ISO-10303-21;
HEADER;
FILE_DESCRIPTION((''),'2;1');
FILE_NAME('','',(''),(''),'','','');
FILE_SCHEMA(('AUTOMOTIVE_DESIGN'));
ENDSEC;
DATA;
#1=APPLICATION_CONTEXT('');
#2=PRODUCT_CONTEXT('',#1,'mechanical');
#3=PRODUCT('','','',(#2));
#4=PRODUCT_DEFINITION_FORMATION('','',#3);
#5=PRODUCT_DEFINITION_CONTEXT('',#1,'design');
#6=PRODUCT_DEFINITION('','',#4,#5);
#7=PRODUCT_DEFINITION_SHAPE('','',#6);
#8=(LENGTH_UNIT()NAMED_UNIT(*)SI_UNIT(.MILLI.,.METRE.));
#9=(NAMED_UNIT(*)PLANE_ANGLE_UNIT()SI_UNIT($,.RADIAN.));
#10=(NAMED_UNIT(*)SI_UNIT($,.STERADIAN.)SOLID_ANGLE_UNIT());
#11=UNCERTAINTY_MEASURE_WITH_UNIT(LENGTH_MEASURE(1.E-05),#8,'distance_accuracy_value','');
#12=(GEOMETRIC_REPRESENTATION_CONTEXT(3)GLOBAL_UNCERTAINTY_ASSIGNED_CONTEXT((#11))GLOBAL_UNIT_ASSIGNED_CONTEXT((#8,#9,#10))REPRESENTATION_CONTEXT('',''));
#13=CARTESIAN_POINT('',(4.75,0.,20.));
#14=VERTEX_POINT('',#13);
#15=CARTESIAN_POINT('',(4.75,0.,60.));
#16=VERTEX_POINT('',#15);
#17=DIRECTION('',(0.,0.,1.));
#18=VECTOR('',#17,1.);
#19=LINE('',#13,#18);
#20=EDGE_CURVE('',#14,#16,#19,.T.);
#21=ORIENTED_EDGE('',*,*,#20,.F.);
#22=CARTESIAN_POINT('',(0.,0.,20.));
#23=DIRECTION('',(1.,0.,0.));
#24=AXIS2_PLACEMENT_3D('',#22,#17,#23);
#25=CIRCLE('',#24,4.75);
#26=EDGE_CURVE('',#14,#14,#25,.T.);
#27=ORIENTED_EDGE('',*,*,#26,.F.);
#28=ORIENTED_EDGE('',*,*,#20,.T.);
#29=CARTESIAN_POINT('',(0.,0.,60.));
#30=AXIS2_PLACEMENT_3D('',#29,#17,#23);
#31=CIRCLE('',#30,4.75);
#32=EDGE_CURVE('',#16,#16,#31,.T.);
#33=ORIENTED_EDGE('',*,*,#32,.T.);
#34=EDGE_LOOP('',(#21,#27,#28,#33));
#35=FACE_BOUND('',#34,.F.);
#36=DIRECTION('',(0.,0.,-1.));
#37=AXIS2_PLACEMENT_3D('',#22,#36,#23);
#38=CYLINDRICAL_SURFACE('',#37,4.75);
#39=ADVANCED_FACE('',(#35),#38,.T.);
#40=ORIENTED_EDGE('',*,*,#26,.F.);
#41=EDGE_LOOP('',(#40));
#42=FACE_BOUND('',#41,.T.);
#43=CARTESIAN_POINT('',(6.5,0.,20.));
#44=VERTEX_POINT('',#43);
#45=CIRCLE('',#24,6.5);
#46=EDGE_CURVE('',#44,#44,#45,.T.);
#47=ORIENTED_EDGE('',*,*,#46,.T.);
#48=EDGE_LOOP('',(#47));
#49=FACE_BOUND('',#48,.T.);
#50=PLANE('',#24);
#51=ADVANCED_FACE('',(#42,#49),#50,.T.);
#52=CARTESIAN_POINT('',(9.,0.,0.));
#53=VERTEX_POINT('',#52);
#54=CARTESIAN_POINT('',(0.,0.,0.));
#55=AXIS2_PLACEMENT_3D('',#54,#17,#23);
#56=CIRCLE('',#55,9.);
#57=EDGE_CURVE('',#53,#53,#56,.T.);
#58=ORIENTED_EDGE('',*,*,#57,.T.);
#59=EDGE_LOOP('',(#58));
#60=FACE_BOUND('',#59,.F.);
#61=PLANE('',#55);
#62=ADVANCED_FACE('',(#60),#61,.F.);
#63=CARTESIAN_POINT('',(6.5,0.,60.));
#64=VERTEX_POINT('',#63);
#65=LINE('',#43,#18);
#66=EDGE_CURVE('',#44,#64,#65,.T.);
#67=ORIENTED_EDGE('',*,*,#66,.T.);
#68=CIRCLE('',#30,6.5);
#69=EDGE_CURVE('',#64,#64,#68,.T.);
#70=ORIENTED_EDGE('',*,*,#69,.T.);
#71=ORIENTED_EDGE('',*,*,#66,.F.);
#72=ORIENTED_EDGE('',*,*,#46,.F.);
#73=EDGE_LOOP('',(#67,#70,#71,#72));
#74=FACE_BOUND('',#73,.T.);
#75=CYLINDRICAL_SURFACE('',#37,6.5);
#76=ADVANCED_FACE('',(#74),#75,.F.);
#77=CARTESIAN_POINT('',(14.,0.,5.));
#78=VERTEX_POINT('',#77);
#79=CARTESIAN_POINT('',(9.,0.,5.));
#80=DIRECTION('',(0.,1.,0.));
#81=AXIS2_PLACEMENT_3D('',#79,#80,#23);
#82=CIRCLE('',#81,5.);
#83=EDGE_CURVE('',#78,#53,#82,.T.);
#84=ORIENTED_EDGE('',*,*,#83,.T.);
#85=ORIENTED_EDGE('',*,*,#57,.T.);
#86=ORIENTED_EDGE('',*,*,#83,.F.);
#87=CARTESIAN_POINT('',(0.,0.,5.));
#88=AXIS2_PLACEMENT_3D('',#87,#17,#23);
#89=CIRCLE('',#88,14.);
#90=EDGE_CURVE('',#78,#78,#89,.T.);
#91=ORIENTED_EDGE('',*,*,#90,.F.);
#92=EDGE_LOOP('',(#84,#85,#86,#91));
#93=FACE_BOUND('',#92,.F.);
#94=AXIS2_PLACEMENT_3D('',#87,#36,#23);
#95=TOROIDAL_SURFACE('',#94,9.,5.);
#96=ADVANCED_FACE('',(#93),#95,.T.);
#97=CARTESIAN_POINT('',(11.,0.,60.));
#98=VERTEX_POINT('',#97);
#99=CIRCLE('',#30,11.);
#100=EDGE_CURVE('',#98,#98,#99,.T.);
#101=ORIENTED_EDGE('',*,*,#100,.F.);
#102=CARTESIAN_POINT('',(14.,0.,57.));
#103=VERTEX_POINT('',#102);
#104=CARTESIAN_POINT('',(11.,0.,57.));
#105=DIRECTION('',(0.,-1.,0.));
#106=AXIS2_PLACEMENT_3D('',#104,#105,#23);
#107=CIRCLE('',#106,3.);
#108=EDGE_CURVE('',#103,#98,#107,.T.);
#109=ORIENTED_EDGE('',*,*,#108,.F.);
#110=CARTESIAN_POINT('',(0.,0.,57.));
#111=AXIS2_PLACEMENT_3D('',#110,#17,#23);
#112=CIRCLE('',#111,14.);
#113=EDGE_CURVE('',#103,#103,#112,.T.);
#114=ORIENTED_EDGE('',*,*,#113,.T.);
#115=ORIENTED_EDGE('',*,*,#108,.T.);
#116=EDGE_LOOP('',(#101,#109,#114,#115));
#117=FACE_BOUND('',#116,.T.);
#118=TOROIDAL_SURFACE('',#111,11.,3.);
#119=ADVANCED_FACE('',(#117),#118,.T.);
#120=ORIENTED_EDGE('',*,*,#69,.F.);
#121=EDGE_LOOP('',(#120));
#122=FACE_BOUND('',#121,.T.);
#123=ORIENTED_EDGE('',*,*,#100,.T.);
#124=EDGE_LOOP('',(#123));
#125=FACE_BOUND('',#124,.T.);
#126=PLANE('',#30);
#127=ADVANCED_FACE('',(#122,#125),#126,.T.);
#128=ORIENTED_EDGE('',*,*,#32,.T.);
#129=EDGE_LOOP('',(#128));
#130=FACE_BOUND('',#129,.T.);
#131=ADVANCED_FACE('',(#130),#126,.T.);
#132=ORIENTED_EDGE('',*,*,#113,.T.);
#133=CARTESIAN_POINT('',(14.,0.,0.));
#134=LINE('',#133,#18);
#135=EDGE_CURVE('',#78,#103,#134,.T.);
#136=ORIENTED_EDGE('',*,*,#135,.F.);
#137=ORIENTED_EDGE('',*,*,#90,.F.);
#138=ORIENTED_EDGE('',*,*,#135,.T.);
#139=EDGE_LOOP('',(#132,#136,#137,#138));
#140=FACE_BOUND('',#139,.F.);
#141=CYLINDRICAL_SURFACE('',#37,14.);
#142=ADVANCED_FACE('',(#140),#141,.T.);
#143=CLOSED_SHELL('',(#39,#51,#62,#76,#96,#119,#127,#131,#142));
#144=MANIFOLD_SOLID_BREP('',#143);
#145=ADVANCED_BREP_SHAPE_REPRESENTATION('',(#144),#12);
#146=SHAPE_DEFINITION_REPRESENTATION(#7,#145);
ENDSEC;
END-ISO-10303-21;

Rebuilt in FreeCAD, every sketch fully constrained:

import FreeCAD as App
import Part
import Sketcher
from FreeCAD import Vector


def edges_at(feature, points):
    """Names of the edges that pass closest to the given points."""
    edges = feature.Shape.Edges
    near = lambda p: min(range(len(edges)), key=lambda i: edges[i].distToShape(Part.Vertex(*p))[0])
    return sorted({f"Edge{near(p) + 1}" for p in points})

doc = App.newDocument("Part")
params = doc.addObject("Spreadsheet::Sheet", "Params")
for row, (alias, value) in enumerate([
    ("sketch1_diameter", "28 mm"),
    ("pad1_length", "20 mm"),
    ("sketch2_diameter", "28 mm"),
    ("sketch2_diameter2", "13 mm"),
    ("sketch2_diameter3", "9.5 mm"),
    ("pad2_length", "40 mm"),
    ("fillet_radius", "5 mm"),
    ("fillet2_radius", "3 mm"),
], start=1):
    params.set(f"A{row}", alias)
    params.set(f"B{row}", "=" + value)
    params.setAlias(f"B{row}", alias)

body = doc.addObject("PartDesign::Body", "Body")

# Sketch on XY plane
sketch1 = body.newObject("Sketcher::SketchObject", "Sketch")
sketch1.AttachmentSupport = (doc.getObject("XY_Plane"), [""])
sketch1.MapMode = "FlatFace"
sketch1.addGeometry(Part.Circle(Vector(0, 0, 0), Vector(0, 0, 1), 14), False)
sketch1.addConstraint([
    Sketcher.Constraint("Coincident", 0, 3, -1, 1),
    Sketcher.Constraint("Diameter", 0, 28.0),
])
sketch1.setExpression("Constraints[1]", "Params.sketch1_diameter")
pad1 = body.newObject("PartDesign::Pad", "Pad")
pad1.Profile = sketch1
pad1.setExpression("Length", "Params.pad1_length")

# Sketch on XY plane
sketch2 = body.newObject("Sketcher::SketchObject", "Sketch001")
sketch2.AttachmentSupport = (doc.getObject("XY_Plane"), [""])
sketch2.MapMode = "FlatFace"
sketch2.AttachmentOffset = App.Placement(Vector(0, 0, 20), App.Rotation())
sketch2.addGeometry([
    Part.Circle(Vector(0, 0, 0), Vector(0, 0, 1), 14),
    Part.Circle(Vector(0, 0, 0), Vector(0, 0, 1), 6.5),
    Part.Circle(Vector(0, 0, 0), Vector(0, 0, 1), 4.8),
], False)
sketch2.addConstraint([
    Sketcher.Constraint("Coincident", 0, 3, -1, 1),
    Sketcher.Constraint("Coincident", 1, 3, -1, 1),
    Sketcher.Constraint("Coincident", 2, 3, -1, 1),
    Sketcher.Constraint("Diameter", 0, 28.0),
    Sketcher.Constraint("Diameter", 1, 13.0),
    Sketcher.Constraint("Diameter", 2, 9.5),
])
sketch2.setExpression("Constraints[3]", "Params.sketch2_diameter")
sketch2.setExpression("Constraints[4]", "Params.sketch2_diameter2")
sketch2.setExpression("Constraints[5]", "Params.sketch2_diameter3")
pad2 = body.newObject("PartDesign::Pad", "Pad001")
pad2.Profile = sketch2
pad2.setExpression("Length", "Params.pad2_length")
doc.recompute()

fillet = body.newObject("PartDesign::Fillet", "Fillet")
fillet.Base = (pad2, edges_at(pad2, [(-14, 0, 0)]))
fillet.setExpression("Radius", "Params.fillet_radius")
doc.recompute()

fillet2 = body.newObject("PartDesign::Fillet", "Fillet001")
fillet2.Base = (fillet, edges_at(fillet, [(-14, 0, 60)]))
fillet2.setExpression("Radius", "Params.fillet2_radius")

doc.recompute()
